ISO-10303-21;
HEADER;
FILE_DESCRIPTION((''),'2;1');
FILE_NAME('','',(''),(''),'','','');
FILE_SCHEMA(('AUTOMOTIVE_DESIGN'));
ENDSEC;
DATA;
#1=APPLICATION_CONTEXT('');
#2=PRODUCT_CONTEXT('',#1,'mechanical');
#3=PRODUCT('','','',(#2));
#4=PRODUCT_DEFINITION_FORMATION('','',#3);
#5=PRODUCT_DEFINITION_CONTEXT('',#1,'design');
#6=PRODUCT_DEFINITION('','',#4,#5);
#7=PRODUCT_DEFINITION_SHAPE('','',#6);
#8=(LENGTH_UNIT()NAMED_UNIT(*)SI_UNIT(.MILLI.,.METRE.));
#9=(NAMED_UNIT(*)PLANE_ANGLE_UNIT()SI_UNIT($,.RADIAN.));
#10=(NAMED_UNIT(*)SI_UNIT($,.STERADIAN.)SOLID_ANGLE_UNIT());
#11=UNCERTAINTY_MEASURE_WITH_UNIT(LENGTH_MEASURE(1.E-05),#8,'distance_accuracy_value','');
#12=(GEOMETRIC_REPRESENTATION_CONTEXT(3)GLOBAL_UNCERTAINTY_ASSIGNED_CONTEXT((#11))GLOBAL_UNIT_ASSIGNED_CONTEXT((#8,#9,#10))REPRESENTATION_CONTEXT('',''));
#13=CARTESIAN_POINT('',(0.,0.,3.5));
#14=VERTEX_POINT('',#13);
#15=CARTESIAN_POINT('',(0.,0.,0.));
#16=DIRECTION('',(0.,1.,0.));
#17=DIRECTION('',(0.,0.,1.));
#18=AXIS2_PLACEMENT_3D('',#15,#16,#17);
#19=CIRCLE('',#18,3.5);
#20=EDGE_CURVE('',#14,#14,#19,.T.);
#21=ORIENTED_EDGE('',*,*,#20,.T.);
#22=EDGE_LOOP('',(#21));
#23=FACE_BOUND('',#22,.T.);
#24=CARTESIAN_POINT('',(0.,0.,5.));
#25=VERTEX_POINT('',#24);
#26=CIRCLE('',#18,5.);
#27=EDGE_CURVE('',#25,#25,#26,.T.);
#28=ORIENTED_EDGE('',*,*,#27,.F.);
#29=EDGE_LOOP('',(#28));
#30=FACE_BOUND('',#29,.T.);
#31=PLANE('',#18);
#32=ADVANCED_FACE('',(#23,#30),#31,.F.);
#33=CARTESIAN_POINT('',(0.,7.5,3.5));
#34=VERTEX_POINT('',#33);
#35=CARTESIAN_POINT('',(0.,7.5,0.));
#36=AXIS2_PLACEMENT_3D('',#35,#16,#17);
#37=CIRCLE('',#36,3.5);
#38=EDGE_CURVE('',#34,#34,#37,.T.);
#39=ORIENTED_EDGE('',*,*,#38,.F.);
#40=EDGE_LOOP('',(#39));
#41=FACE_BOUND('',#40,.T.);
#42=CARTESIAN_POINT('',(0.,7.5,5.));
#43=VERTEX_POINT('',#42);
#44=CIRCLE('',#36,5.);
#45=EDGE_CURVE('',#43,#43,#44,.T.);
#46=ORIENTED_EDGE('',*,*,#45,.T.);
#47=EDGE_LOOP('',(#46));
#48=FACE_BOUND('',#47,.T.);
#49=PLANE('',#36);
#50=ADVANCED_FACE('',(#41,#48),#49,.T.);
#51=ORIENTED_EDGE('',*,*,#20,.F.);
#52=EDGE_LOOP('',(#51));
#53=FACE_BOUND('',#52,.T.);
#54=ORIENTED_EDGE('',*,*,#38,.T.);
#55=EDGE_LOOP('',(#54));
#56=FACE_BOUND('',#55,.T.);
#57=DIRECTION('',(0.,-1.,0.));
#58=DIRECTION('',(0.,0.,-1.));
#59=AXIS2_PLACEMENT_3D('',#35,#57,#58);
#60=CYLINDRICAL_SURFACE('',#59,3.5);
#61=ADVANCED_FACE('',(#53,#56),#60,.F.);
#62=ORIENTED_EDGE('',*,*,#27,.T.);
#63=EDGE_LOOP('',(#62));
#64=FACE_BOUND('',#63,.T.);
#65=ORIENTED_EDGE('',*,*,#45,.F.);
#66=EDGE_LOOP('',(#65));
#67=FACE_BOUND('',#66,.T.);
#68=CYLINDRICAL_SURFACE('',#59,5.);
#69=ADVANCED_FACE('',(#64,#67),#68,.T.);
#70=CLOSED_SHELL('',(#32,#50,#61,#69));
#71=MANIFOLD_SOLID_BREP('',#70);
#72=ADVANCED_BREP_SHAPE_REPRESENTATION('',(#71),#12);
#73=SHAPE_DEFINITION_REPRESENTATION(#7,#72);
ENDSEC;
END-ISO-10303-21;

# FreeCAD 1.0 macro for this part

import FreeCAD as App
import Part
import Sketcher
from FreeCAD import Vector

doc = App.newDocument("Part")
body = doc.addObject("PartDesign::Body", "Body")

sketch1 = body.newObject("Sketcher::SketchObject", "Sketch")
sketch1.AttachmentSupport = (doc.getObject("XZ_Plane"), [""])
sketch1.MapMode = "FlatFace"
sketch1.addGeometry([
    Part.Circle(Vector(0, 0, 0), Vector(0, 0, 1), 5),
    Part.Circle(Vector(0, 0, 0), Vector(0, 0, 1), 3.5),
], False)
sketch1.addConstraint([
    Sketcher.Constraint("Coincident", 0, 3, -1, 1),
    Sketcher.Constraint("Coincident", 1, 3, -1, 1),
    Sketcher.Constraint("Diameter", 0, 10.0),
    Sketcher.Constraint("Diameter", 1, 7.0),
])
pad1 = body.newObject("PartDesign::Pad", "Pad")
pad1.Profile = sketch1
pad1.Length = 7.5
pad1.Reversed = True

doc.recompute()
